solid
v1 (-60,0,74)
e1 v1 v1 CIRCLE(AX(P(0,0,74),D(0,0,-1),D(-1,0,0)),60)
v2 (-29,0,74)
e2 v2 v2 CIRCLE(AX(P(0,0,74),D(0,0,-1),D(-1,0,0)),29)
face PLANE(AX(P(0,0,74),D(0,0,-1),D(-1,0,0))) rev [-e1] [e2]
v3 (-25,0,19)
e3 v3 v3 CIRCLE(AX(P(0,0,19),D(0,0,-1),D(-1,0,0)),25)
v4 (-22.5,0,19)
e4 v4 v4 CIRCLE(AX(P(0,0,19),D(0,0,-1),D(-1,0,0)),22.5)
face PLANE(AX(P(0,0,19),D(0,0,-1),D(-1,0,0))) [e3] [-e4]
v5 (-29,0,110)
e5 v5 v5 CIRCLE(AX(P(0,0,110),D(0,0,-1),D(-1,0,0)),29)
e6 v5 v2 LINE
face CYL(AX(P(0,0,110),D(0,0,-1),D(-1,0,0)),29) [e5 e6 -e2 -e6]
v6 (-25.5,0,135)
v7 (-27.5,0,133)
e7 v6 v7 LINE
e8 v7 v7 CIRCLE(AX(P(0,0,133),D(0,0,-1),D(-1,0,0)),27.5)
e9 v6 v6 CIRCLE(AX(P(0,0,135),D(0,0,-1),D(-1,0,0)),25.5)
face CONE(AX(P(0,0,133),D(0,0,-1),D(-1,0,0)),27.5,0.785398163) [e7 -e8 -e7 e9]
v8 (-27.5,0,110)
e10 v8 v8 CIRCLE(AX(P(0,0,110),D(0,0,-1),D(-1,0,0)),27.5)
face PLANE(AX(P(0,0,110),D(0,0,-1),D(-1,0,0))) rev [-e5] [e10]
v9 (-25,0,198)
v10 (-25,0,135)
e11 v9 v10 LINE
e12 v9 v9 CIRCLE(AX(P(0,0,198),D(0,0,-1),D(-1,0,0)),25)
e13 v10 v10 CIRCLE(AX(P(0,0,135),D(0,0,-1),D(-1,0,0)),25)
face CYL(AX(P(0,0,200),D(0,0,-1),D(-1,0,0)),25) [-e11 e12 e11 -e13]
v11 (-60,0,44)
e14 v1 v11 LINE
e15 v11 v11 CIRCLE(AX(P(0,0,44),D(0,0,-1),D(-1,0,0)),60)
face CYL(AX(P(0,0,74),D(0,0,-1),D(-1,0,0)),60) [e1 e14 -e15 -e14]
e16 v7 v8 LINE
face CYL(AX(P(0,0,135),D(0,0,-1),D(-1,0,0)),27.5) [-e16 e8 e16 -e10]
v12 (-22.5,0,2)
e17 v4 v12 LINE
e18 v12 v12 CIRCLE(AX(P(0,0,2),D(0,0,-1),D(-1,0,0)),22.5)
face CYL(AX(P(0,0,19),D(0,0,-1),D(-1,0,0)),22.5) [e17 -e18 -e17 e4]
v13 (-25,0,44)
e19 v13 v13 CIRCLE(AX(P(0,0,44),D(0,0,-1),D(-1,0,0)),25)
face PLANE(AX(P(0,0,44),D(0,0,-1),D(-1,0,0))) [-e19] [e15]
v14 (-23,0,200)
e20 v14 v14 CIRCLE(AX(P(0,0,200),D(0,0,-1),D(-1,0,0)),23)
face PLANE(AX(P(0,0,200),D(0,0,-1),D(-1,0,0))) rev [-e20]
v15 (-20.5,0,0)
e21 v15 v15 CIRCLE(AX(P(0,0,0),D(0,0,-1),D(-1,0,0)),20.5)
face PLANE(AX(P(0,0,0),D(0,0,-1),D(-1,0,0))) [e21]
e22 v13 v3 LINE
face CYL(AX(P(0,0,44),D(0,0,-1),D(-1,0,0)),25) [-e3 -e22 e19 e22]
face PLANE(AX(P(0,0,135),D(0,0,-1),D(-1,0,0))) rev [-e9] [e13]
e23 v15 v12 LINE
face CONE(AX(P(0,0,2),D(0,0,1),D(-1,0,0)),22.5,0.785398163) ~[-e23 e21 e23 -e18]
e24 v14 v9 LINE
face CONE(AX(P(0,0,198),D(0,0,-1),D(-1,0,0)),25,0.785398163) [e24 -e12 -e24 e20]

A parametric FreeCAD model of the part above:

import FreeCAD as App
import Part
import Sketcher


def edges_at(feature, points):
    """Names of the edges that pass closest to the given points."""
    edges = feature.Shape.Edges
    near = lambda p: min(range(len(edges)), key=lambda i: edges[i].distToShape(Part.Vertex(*p))[0])
    return sorted({f"Edge{near(p) + 1}" for p in points})

doc = App.newDocument("Part")
params = doc.addObject("Spreadsheet::Sheet", "Params")
for row, (alias, value) in enumerate([
    ("sketch1_width", "25 mm"),
    ("sketch1_width2", "31 mm"),
    ("sketch1_width3", "35 mm"),
    ("sketch1_height", "200 mm"),
    ("sketch1_height2", "65 mm"),
    ("revolution_angle", "360 deg"),
    ("chamfer_size", "2 mm"),
], start=1):
    params.set(f"A{row}", alias)
    params.set(f"B{row}", "=" + value)
    params.setAlias(f"B{row}", alias)

body = doc.addObject("PartDesign::Body", "Body")

# Sketch on XZ plane
sketch1 = body.newObject("Sketcher::SketchObject", "Sketch")
sketch1.AttachmentSupport = (doc.getObject("XZ_Plane"), [""])
sketch1.MapMode = "FlatFace"
sketch1.addGeometry([
    Part.LineSegment(App.Vector(-22.5, 0, 0), App.Vector(0, 0, 0)),  # 0
    Part.LineSegment(App.Vector(0, 0, 0), App.Vector(0, 200, 0)),  # 1
    Part.LineSegment(App.Vector(0, 200, 0), App.Vector(-25, 200, 0)),  # 2
    Part.LineSegment(App.Vector(-25, 200, 0), App.Vector(-25, 135, 0)),  # 3
    Part.LineSegment(App.Vector(-25, 135, 0), App.Vector(-27.5, 135, 0)),  # 4
    Part.LineSegment(App.Vector(-27.5, 135, 0), App.Vector(-27.5, 110, 0)),  # 5
    Part.LineSegment(App.Vector(-27.5, 110, 0), App.Vector(-29, 110, 0)),  # 6
    Part.LineSegment(App.Vector(-29, 110, 0), App.Vector(-29, 74, 0)),  # 7
    Part.LineSegment(App.Vector(-29, 74, 0), App.Vector(-60, 74, 0)),  # 8
    Part.LineSegment(App.Vector(-60, 74, 0), App.Vector(-60, 44, 0)),  # 9
    Part.LineSegment(App.Vector(-60, 44, 0), App.Vector(-25, 44, 0)),  # 10
    Part.LineSegment(App.Vector(-25, 44, 0), App.Vector(-25, 19, 0)),  # 11
    Part.LineSegment(App.Vector(-25, 19, 0), App.Vector(-22.5, 19, 0)),  # 12
    Part.LineSegment(App.Vector(-22.5, 19, 0), App.Vector(-22.5, 0, 0)),  # 13
], False)
sketch1.addConstraint([
    Sketcher.Constraint("Coincident", 0, 2, 1, 1),
    Sketcher.Constraint("Coincident", 1, 2, 2, 1),
    Sketcher.Constraint("Coincident", 2, 2, 3, 1),
    Sketcher.Constraint("Coincident", 3, 2, 4, 1),
    Sketcher.Constraint("Coincident", 4, 2, 5, 1),
    Sketcher.Constraint("Coincident", 5, 2, 6, 1),
    Sketcher.Constraint("Coincident", 6, 2, 7, 1),
    Sketcher.Constraint("Coincident", 7, 2, 8, 1),
    Sketcher.Constraint("Coincident", 8, 2, 9, 1),
    Sketcher.Constraint("Coincident", 9, 2, 10, 1),
    Sketcher.Constraint("Coincident", 10, 2, 11, 1),
    Sketcher.Constraint("Coincident", 11, 2, 12, 1),
    Sketcher.Constraint("Coincident", 12, 2, 13, 1),
    Sketcher.Constraint("Coincident", 13, 2, 0, 1),
    Sketcher.Constraint("Horizontal", 0),
    Sketcher.Constraint("Vertical", 1),
    Sketcher.Constraint("Horizontal", 2),
    Sketcher.Constraint("Vertical", 3),
    Sketcher.Constraint("Horizontal", 4),
    Sketcher.Constraint("Vertical", 5),
    Sketcher.Constraint("Horizontal", 6),
    Sketcher.Constraint("Vertical", 7),
    Sketcher.Constraint("Horizontal", 8),
    Sketcher.Constraint("Vertical", 9),
    Sketcher.Constraint("Horizontal", 10),
    Sketcher.Constraint("Vertical", 11),
    Sketcher.Constraint("Horizontal", 12),
    Sketcher.Constraint("Vertical", 13),
    Sketcher.Constraint("Coincident", 0, 2, -1, 1),
    Sketcher.Constraint("Vertical", 3, 2, 10, 2),
    Sketcher.Constraint("Equal", 4, 12),
    Sketcher.Constraint("Equal", 2, 5),
    Sketcher.Constraint("Equal", 5, 11),
    Sketcher.Constraint("DistanceX", 2, 2, 2, 1, 25.0),
    Sketcher.Constraint("DistanceX", 8, 2, 8, 1, 31.0),
    Sketcher.Constraint("DistanceX", 10, 1, 10, 2, 35.0),
    Sketcher.Constraint("DistanceY", 1, 1, 1, 2, 200.0),
    Sketcher.Constraint("DistanceY", 3, 2, 3, 1, 65.0),
    Sketcher.Constraint("DistanceY", 7, 2, 7, 1, 36.0),
    Sketcher.Constraint("DistanceY", 9, 2, 9, 1, 30.0),
    Sketcher.Constraint("DistanceX", 0, 1, 0, 2, 22.5),
])
sketch1.setExpression("Constraints[33]", "Params.sketch1_width")
sketch1.setExpression("Constraints[34]", "Params.sketch1_width2")
sketch1.setExpression("Constraints[35]", "Params.sketch1_width3")
sketch1.setExpression("Constraints[36]", "Params.sketch1_height")
sketch1.setExpression("Constraints[37]", "Params.sketch1_height2")
revolution = body.newObject("PartDesign::Revolution", "Revolution")
revolution.Profile = sketch1
revolution.ReferenceAxis = (sketch1, ["V_Axis"])
revolution.setExpression("Angle", "Params.revolution_angle")
doc.recompute()

chamfer = body.newObject("PartDesign::Chamfer", "Chamfer")
chamfer.Base = (revolution, edges_at(revolution, [(22.5, 0, 0), (25, 0, 200), (27.5, 0, 135)]))
chamfer.setExpression("Size", "Params.chamfer_size")

doc.recompute()
